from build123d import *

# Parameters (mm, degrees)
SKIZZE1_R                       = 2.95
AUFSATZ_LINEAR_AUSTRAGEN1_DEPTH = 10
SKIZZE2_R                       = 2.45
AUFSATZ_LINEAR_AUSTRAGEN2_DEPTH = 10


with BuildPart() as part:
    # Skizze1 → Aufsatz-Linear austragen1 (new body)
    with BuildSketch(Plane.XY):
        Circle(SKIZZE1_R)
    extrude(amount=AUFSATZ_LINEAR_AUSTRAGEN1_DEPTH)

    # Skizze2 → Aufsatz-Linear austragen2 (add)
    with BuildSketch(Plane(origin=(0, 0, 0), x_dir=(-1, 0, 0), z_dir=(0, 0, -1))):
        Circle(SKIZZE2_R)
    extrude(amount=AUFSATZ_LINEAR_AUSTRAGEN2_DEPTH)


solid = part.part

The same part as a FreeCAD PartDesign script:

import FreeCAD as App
import Part
import Sketcher

V = App.Vector
Q = App.Units.Quantity

doc = App.newDocument("Part")
body = doc.addObject("PartDesign::Body", "Body")

# Sketch on XY plane
sketch1 = body.newObject("Sketcher::SketchObject", "Sketch")
sketch1.AttachmentSupport = (doc.getObject("XY_Plane"), [""])
sketch1.MapMode = "FlatFace"
sketch1.addGeometry(Part.Circle(V(0, 0, 0), V(0, 0, 1), 2.95), False)
sketch1.addConstraint(Sketcher.Constraint("Coincident", 0, 3, -1, 1))
sketch1.addConstraint(Sketcher.Constraint("Diameter", 0, Q("5.9 mm")))
pad1 = body.newObject("PartDesign::Pad", "Pad")
pad1.Profile = sketch1
pad1.Length = 10

# Sketch on XY plane
sketch2 = body.newObject("Sketcher::SketchObject", "Sketch001")
sketch2.AttachmentSupport = (doc.getObject("XY_Plane"), [""])
sketch2.MapMode = "FlatFace"
sketch2.addGeometry(Part.Circle(V(0, 0, 0), V(0, 0, 1), 2.45), False)
sketch2.addConstraint(Sketcher.Constraint("Coincident", 0, 3, -1, 1))
sketch2.addConstraint(Sketcher.Constraint("Diameter", 0, Q("4.9 mm")))
pad2 = body.newObject("PartDesign::Pad", "Pad001")
pad2.Profile = sketch2
pad2.Length = 10
pad2.Reversed = True

doc.recompute()
